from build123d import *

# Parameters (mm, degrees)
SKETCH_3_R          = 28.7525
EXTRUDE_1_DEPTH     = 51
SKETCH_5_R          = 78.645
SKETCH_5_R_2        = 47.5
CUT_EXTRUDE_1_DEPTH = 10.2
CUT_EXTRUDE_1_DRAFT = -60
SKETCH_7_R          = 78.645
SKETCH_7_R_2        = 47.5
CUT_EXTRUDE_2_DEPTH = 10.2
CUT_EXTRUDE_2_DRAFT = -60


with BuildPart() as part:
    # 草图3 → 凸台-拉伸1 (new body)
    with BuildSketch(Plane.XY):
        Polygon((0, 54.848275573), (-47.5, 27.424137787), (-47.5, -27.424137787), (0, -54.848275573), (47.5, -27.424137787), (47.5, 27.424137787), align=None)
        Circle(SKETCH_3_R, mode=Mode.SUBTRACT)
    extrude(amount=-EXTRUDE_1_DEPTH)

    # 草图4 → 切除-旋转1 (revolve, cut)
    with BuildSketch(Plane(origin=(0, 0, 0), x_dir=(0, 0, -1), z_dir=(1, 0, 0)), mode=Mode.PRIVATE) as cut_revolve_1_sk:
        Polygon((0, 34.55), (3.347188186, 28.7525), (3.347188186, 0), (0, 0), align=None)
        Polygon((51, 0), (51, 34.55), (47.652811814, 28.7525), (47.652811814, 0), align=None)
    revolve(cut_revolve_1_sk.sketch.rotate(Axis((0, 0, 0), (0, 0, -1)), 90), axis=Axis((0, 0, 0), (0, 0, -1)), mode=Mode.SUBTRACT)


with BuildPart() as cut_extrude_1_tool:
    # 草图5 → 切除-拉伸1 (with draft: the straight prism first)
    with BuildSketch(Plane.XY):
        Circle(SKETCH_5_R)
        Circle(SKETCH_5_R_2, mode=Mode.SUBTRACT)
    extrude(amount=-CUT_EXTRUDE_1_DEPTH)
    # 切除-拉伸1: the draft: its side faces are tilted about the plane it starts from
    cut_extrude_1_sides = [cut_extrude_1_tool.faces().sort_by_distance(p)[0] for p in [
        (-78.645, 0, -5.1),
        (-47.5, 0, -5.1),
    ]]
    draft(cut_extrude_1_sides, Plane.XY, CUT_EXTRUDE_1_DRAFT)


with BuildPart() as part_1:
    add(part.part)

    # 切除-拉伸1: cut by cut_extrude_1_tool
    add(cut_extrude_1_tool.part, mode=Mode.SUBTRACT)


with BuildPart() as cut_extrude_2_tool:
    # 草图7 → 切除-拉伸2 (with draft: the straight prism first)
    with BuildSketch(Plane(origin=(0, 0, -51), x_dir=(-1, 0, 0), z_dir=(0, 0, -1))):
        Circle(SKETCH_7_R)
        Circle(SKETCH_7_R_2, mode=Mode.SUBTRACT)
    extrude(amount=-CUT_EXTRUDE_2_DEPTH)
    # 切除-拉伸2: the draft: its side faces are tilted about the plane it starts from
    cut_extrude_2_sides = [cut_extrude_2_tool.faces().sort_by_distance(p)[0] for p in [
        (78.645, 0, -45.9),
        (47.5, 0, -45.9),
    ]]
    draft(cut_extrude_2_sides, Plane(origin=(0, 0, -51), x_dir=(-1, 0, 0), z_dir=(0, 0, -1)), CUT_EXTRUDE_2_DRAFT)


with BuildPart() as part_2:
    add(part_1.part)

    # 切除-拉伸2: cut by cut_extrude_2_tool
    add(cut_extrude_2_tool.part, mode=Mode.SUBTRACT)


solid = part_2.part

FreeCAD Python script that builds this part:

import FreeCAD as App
import Part
import Sketcher

V = App.Vector
Q = App.Units.Quantity


def faces_at(feature, points):
    """Names of the faces that lie closest to the given points."""
    faces = feature.Shape.Faces
    near = lambda p: min(range(len(faces)), key=lambda i: faces[i].distToShape(Part.Vertex(*p))[0])
    return sorted({f"Face{near(p) + 1}" for p in points})

doc = App.newDocument("Part")
body = doc.addObject("PartDesign::Body", "Body")

sketch1 = body.newObject("Sketcher::SketchObject", "Sketch")
sketch1.AttachmentSupport = (doc.getObject("XY_Plane"), [""])
sketch1.MapMode = "FlatFace"
sketch1.addGeometry([
    Part.LineSegment(V(0, 55, 0), V(-48, 27, 0)),
    Part.LineSegment(V(-48, 27, 0), V(-48, -27, 0)),
    Part.LineSegment(V(-48, -27, 0), V(0, -55, 0)),
    Part.LineSegment(V(0, -55, 0), V(48, -27, 0)),
    Part.LineSegment(V(48, -27, 0), V(48, 27, 0)),
    Part.LineSegment(V(48, 27, 0), V(0, 55, 0)),
    Part.Circle(V(0, 0, 0), V(0, 0, 1), 29),
], False)
sketch1.addConstraint([
    Sketcher.Constraint("Coincident", 0, 2, 1, 1),
    Sketcher.Constraint("Coincident", 1, 2, 2, 1),
    Sketcher.Constraint("Coincident", 2, 2, 3, 1),
    Sketcher.Constraint("Coincident", 3, 2, 4, 1),
    Sketcher.Constraint("Coincident", 4, 2, 5, 1),
    Sketcher.Constraint("Coincident", 5, 2, 0, 1),
    Sketcher.Constraint("Vertical", 1),
    Sketcher.Constraint("Vertical", 4),
    Sketcher.Constraint("Coincident", 6, 3, -1, 1),
    Sketcher.Constraint("Symmetric", 0, 2, 3, 2, -1, 1),
    Sketcher.Constraint("Symmetric", 2, 2, 5, 2, -1, 1),
    Sketcher.Constraint("PointOnObject", 2, 2, -2),
    Sketcher.Constraint("Parallel", 2, 5),
    Sketcher.Constraint("Horizontal", 1, 2, 3, 2),
    Sketcher.Constraint("Angle", 0, Q("-150 deg")),
    Sketcher.Constraint("Diameter", 6, Q("57.505 mm")),
    Sketcher.Constraint("DistanceX", 1, 2, 3, 2, Q("95 mm")),
    Sketcher.Constraint("DistanceY", 1, 2, 1, 1, Q("54.848276 mm")),
])
pad1 = body.newObject("PartDesign::Pad", "Pad")
pad1.Profile = sketch1
pad1.Length = 51
pad1.Reversed = True

sketch2 = body.newObject("Sketcher::SketchObject", "Sketch001")
sketch2.AttachmentSupport = (doc.getObject("YZ_Plane"), [""])
sketch2.MapMode = "FlatFace"
sketch2.addGeometry([
    Part.LineSegment(V(28.8, -3.3, 0), V(34.5, 0, 0)),
    Part.LineSegment(V(34.5, 0, 0), V(0, 0, 0)),
    Part.LineSegment(V(0, 0, 0), V(0, -3.3, 0)),
    Part.LineSegment(V(0, -3.3, 0), V(28.8, -3.3, 0)),
    Part.LineSegment(V(0, -51, 0), V(34.5, -51, 0)),
    Part.LineSegment(V(34.5, -51, 0), V(28.8, -47.7, 0)),
    Part.LineSegment(V(28.8, -47.7, 0), V(0, -47.7, 0)),
    Part.LineSegment(V(0, -47.7, 0), V(0, -51, 0)),
], False)
sketch2.addConstraint([
    Sketcher.Constraint("Coincident", 0, 2, 1, 1),
    Sketcher.Constraint("Coincident", 1, 2, 2, 1),
    Sketcher.Constraint("Coincident", 2, 2, 3, 1),
    Sketcher.Constraint("Coincident", 3, 2, 0, 1),
    Sketcher.Constraint("Coincident", 4, 2, 5, 1),
    Sketcher.Constraint("Coincident", 5, 2, 6, 1),
    Sketcher.Constraint("Coincident", 6, 2, 7, 1),
    Sketcher.Constraint("Coincident", 7, 2, 4, 1),
    Sketcher.Constraint("Horizontal", 1),
    Sketcher.Constraint("Vertical", 2),
    Sketcher.Constraint("Horizontal", 3),
    Sketcher.Constraint("Horizontal", 4),
    Sketcher.Constraint("Horizontal", 6),
    Sketcher.Constraint("Vertical", 7),
    Sketcher.Constraint("Coincident", 1, 2, -1, 1),
    Sketcher.Constraint("PointOnObject", 6, 2, -2),
    Sketcher.Constraint("Vertical", 0, 2, 4, 2),
    Sketcher.Constraint("Vertical", 3, 2, 5, 2),
    Sketcher.Constraint("Equal", 2, 7),
    Sketcher.Constraint("Angle", 0, Q("30 deg")),
    Sketcher.Constraint("DistanceY", 4, 2, -1, 1, Q("51 mm")),
    Sketcher.Constraint("DistanceX", 1, 2, 1, 1, Q("34.55 mm")),
    Sketcher.Constraint("DistanceX", 3, 1, 3, 2, Q("28.7525 mm")),
])
groove = body.newObject("PartDesign::Groove", "Groove")
groove.Profile = sketch2
groove.ReferenceAxis = (sketch2, ["V_Axis"])
groove.Angle = 360
body2 = doc.addObject("PartDesign::Body", "Body001")

sketch3 = body2.newObject("Sketcher::SketchObject", "Sketch002")
sketch3.AttachmentSupport = (doc.getObject("XY_Plane001"), [""])
sketch3.MapMode = "FlatFace"
sketch3.addGeometry([
    Part.Circle(V(0, 0, 0), V(0, 0, 1), 79),
    Part.Circle(V(0, 0, 0), V(0, 0, 1), 48),
], False)
sketch3.addConstraint([
    Sketcher.Constraint("Coincident", 0, 3, -1, 1),
    Sketcher.Constraint("Coincident", 1, 3, -1, 1),
    Sketcher.Constraint("Diameter", 1, Q("95 mm")),
    Sketcher.Constraint("Diameter", 0, Q("157.29 mm")),
])
pad2 = body2.newObject("PartDesign::Pad", "Pad001")
pad2.Profile = sketch3
pad2.Length = 10.2
pad2.Reversed = True
doc.recompute()

draft = body2.newObject("PartDesign::Draft", "Draft")
draft.Base = (pad2, faces_at(pad2, [(-78.645, 0, -5.1), (-47.5, 0, -5.1)]))
draft.NeutralPlane = (doc.getObject("XY_Plane001"), [""])
draft.Angle = 60
draft.Reversed = True
doc.recompute()

boolean = body.newObject("PartDesign::Boolean", "Boolean")
boolean.Type = "Cut"
boolean.addObjects([body2])
body3 = doc.addObject("PartDesign::Body", "Body002")

sketch4 = body3.newObject("Sketcher::SketchObject", "Sketch003")
sketch4.AttachmentSupport = (doc.getObject("XY_Plane002"), [""])
sketch4.MapMode = "FlatFace"
sketch4.AttachmentOffset = App.Placement(V(0, 0, -51), App.Rotation())
sketch4.addGeometry([
    Part.Circle(V(0, 0, 0), V(0, 0, 1), 79),
    Part.Circle(V(0, 0, 0), V(0, 0, 1), 48),
], False)
sketch4.addConstraint([
    Sketcher.Constraint("Coincident", 0, 3, -1, 1),
    Sketcher.Constraint("Coincident", 1, 3, -1, 1),
    Sketcher.Constraint("Diameter", 1, Q("95 mm")),
    Sketcher.Constraint("Diameter", 0, Q("157.29 mm")),
])
pad3 = body3.newObject("PartDesign::Pad", "Pad002")
pad3.Profile = sketch4
pad3.Length = 10.2
doc.recompute()

datumplane = body3.newObject("PartDesign::Plane", "DatumPlane")
datumplane.AttachmentSupport = (doc.getObject("XY_Plane002"), [""])
datumplane.MapMode = "FlatFace"
datumplane.AttachmentOffset = App.Placement(V(0, 0, -51), App.Rotation())
draft2 = body3.newObject("PartDesign::Draft", "Draft001")
draft2.Base = (pad3, faces_at(pad3, [(78.645, 0, -45.9), (47.5, 0, -45.9)]))
draft2.NeutralPlane = (datumplane, [""])
draft2.Angle = 60
draft2.Reversed = False
doc.recompute()

boolean2 = body.newObject("PartDesign::Boolean", "Boolean001")
boolean2.Type = "Cut"
boolean2.addObjects([body3])

doc.recompute()
